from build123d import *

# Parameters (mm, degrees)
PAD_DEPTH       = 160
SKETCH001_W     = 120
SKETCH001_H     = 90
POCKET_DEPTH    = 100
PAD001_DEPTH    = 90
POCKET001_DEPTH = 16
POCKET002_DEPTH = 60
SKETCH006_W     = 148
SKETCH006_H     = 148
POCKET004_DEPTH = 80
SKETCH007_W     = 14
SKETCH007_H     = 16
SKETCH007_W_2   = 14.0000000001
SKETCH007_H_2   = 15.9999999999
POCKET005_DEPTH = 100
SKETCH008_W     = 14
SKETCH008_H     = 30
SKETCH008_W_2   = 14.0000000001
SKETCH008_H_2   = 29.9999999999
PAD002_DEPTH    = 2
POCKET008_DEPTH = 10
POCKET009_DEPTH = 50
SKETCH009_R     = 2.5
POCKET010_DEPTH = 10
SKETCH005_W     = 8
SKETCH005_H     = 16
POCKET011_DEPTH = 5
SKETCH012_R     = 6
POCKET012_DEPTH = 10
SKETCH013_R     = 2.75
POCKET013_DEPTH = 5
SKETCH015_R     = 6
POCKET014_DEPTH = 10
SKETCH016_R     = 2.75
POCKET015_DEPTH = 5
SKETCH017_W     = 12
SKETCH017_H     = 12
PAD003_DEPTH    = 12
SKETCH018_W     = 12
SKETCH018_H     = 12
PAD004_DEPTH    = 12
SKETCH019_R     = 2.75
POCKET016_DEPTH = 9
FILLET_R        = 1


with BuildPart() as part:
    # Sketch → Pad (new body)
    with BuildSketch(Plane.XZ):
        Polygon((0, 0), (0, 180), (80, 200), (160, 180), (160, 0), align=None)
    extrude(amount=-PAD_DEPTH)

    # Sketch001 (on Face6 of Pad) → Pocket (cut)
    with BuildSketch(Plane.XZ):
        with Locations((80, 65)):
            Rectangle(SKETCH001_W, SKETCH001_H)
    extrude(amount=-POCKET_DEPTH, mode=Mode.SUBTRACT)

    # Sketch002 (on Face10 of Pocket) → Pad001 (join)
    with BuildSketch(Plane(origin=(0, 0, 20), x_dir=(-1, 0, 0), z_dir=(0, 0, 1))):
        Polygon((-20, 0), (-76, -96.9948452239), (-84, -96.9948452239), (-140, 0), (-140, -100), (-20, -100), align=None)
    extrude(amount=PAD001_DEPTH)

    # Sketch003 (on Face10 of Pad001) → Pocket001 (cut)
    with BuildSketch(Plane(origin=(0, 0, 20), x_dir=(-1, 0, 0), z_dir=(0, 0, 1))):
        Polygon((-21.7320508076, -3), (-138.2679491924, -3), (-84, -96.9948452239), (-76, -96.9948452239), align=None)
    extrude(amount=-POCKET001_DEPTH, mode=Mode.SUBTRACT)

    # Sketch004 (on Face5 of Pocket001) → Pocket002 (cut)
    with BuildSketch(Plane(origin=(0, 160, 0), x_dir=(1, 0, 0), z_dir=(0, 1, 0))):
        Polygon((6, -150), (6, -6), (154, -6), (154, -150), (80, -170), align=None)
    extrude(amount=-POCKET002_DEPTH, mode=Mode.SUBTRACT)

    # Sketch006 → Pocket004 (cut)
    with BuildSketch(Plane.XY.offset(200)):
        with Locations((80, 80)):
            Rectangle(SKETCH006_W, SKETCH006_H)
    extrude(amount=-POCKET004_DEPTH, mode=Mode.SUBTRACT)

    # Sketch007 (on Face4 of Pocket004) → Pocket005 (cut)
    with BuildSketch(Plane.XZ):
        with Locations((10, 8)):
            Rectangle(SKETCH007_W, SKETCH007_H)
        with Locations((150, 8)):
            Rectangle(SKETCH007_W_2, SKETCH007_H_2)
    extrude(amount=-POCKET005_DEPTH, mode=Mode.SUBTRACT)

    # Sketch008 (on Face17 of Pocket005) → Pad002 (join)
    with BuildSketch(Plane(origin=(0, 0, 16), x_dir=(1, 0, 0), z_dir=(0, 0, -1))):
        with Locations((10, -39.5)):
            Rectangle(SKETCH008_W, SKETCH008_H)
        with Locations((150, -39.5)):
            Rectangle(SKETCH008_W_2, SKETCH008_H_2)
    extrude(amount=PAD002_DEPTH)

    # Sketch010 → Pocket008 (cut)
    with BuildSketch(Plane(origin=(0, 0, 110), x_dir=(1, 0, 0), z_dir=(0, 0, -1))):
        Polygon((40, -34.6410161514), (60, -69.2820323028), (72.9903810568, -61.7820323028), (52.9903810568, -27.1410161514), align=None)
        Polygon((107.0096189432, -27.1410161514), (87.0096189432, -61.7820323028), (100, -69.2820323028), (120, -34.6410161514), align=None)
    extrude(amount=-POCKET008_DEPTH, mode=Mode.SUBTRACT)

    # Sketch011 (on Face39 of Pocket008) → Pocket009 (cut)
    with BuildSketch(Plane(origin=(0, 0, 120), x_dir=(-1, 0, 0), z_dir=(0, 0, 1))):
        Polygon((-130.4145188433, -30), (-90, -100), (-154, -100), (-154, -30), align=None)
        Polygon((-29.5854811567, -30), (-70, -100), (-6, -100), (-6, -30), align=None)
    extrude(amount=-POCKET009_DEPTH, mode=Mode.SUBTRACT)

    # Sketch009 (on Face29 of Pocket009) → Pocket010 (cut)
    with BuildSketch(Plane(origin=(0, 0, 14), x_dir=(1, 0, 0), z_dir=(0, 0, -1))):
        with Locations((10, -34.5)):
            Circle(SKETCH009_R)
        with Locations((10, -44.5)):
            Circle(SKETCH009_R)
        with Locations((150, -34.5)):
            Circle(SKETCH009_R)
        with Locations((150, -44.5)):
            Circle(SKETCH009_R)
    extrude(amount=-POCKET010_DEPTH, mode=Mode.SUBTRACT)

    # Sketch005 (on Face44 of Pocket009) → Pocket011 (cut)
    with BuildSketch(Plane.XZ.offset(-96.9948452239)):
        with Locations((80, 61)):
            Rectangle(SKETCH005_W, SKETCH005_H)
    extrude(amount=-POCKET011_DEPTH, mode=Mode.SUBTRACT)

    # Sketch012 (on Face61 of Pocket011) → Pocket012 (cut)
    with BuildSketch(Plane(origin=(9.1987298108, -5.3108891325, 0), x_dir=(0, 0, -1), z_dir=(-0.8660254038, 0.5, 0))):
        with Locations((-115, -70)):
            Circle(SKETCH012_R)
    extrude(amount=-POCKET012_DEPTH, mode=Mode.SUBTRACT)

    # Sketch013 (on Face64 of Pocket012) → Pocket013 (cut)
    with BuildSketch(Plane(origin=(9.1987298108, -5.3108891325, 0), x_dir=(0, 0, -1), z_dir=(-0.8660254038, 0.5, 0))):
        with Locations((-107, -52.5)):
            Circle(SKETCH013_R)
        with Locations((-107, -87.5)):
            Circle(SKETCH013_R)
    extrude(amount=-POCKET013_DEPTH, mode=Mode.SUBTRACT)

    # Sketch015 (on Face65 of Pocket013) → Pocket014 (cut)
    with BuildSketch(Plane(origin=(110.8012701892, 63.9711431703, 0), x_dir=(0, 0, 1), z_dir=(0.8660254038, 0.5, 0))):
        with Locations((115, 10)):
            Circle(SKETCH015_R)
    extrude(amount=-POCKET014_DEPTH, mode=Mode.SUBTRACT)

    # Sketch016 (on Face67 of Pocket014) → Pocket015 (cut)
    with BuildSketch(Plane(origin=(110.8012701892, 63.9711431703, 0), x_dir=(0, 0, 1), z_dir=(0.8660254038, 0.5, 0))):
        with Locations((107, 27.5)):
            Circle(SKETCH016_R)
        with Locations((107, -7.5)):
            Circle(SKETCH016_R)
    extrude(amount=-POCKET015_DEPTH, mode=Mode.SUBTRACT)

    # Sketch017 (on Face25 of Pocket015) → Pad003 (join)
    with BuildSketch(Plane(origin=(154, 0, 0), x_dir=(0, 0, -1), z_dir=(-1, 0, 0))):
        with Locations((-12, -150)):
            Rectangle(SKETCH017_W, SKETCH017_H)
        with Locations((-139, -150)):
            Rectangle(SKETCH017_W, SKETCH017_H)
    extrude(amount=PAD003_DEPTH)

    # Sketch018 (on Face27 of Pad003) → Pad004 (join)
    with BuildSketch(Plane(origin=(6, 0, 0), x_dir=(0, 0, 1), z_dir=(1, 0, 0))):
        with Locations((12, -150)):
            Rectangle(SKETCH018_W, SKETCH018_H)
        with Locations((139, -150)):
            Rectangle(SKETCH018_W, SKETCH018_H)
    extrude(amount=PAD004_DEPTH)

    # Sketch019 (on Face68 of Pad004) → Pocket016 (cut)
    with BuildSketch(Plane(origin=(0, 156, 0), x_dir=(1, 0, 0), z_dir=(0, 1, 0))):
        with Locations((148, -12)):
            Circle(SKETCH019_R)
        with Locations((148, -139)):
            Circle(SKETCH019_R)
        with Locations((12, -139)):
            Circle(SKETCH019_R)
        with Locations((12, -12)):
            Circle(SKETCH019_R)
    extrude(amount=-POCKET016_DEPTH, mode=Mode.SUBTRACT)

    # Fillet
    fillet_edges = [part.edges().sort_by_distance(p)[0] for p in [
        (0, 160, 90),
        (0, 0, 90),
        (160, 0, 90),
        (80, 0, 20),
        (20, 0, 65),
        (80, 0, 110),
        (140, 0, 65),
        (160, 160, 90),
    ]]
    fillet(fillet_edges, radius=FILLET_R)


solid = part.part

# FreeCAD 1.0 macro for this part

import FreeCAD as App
import Part
import Sketcher

V = App.Vector
Q = App.Units.Quantity


def edges_at(feature, points):
    """Names of the edges that pass closest to the given points."""
    edges = feature.Shape.Edges
    near = lambda p: min(range(len(edges)), key=lambda i: edges[i].distToShape(Part.Vertex(*p))[0])
    return sorted({f"Edge{near(p) + 1}" for p in points})


def add_polygon(sketch, points):
    """Adds a closed chain of lines whose ends are joined by coincident constraints."""
    first, n = sketch.GeometryCount, len(points)
    for a, b in zip(points, points[1:] + points[:1]):
        sketch.addGeometry(Part.LineSegment(App.Vector(*a, 0), App.Vector(*b, 0)), False)
    for i in range(n):
        sketch.addConstraint(Sketcher.Constraint("Coincident", first + i, 2, first + (i + 1) % n, 1))

doc = App.newDocument("Part")
body = doc.addObject("PartDesign::Body", "Body")

# Sketch on XZ plane
sketch1 = doc.addObject("Sketcher::SketchObject", "Sketch")
body.addObject(sketch1)
sketch1.AttachmentSupport = (doc.XZ_Plane, [""])
sketch1.MapMode = "FlatFace"
add_polygon(sketch1, [(0, 180), (0, 0), (160, 0), (160, 180), (80, 200)])  # lines 0-4
sketch1.addConstraint([
    Sketcher.Constraint("Vertical", 0),
    Sketcher.Constraint("Horizontal", 1),
    Sketcher.Constraint("Vertical", 2),
    Sketcher.Constraint("Coincident", 0, 2, -1, 1),
    Sketcher.Constraint("Horizontal", 2, 2, 4, 2),
    Sketcher.Constraint("Equal", 3, 4),
    Sketcher.Constraint("DistanceX", 1, 1, 1, 2, Q("160 mm")),
    Sketcher.Constraint("DistanceY", 0, 2, 0, 1, Q("180 mm")),
    Sketcher.Constraint("DistanceY", -1, 1, 3, 2, Q("200 mm")),
])
pad1 = doc.addObject("PartDesign::Pad", "Pad")
body.addObject(pad1)
pad1.Profile = sketch1
pad1.Length = 160
pad1.Reversed = True

# Sketch on XZ plane
sketch2 = doc.addObject("Sketcher::SketchObject", "Sketch001")
body.addObject(sketch2)
sketch2.AttachmentSupport = (doc.XZ_Plane, [""])
sketch2.MapMode = "FlatFace"
add_polygon(sketch2, [(20, 110), (20, 20), (140, 20), (140, 110)])  # lines 0-3
sketch2.addConstraint([
    Sketcher.Constraint("Vertical", 0),
    Sketcher.Constraint("Horizontal", 1),
    Sketcher.Constraint("Vertical", 2),
    Sketcher.Constraint("Horizontal", 3),
    Sketcher.Constraint("DistanceX", 1, 1, 1, 2, Q("120 mm")),
    Sketcher.Constraint("DistanceY", 0, 2, 0, 1, Q("90 mm")),
    Sketcher.Constraint("DistanceX", -1, 1, 0, 2, Q("20 mm")),
    Sketcher.Constraint("DistanceY", -1, 1, 0, 2, Q("20 mm")),
])
pocket1 = doc.addObject("PartDesign::Pocket", "Pocket")
body.addObject(pocket1)
pocket1.Profile = sketch2
pocket1.Length = 100

# Sketch on XY plane
sketch3 = doc.addObject("Sketcher::SketchObject", "Sketch002")
body.addObject(sketch3)
sketch3.AttachmentSupport = (doc.XY_Plane, [""])
sketch3.MapMode = "FlatFace"
sketch3.AttachmentOffset = App.Placement(V(0, 0, 20), App.Rotation())
add_polygon(sketch3, [(20, 0), (76, 97), (84, 97), (140, 0), (140, 100), (20, 100)])  # lines 0-5
sketch3.addConstraint([
    Sketcher.Constraint("Horizontal", 1),
    Sketcher.Constraint("Vertical", 3),
    Sketcher.Constraint("Horizontal", 4),
    Sketcher.Constraint("Vertical", 5),
    Sketcher.Constraint("PointOnObject", 2, 2, -1),
    Sketcher.Constraint("PointOnObject", 5, 2, -1),
    Sketcher.Constraint("Equal", 0, 2),
    Sketcher.Constraint("DistanceX", 1, 1, 1, 2, Q("8 mm")),
    Sketcher.Constraint("DistanceX", 4, 2, 4, 1, Q("120 mm")),
    Sketcher.Constraint("DistanceY", 3, 1, 3, 2, Q("100 mm")),
    Sketcher.Constraint("Angle", 0, Q("60 deg")),
    Sketcher.Constraint("DistanceX", -1, 1, 0, 2, Q("76 mm")),
])
pad2 = doc.addObject("PartDesign::Pad", "Pad001")
body.addObject(pad2)
pad2.Profile = sketch3
pad2.Length = 90

# Sketch on XY plane
sketch4 = doc.addObject("Sketcher::SketchObject", "Sketch003")
body.addObject(sketch4)
sketch4.AttachmentSupport = (doc.XY_Plane, [""])
sketch4.MapMode = "FlatFace"
sketch4.AttachmentOffset = App.Placement(V(0, 0, 20), App.Rotation())
add_polygon(sketch4, [(22, 3), (138, 3), (84, 97), (76, 97)])  # lines 0-3
sketch4.addConstraint([
    Sketcher.Constraint("Horizontal", 0),
    Sketcher.Constraint("Horizontal", 2),
    Sketcher.Constraint("Equal", 1, 3),
    Sketcher.Constraint("DistanceX", 2, 2, 2, 1, Q("8 mm")),
    Sketcher.Constraint("Angle", 1, Q("120 deg")),
    Sketcher.Constraint("DistanceY", -1, 1, 0, 2, Q("3 mm")),
    Sketcher.Constraint("DistanceX", -1, 1, 1, 2, Q("84 mm")),
    Sketcher.Constraint("DistanceX", 0, 1, 0, 2, Q("116.535898 mm")),
])
pocket2 = doc.addObject("PartDesign::Pocket", "Pocket001")
body.addObject(pocket2)
pocket2.Profile = sketch4
pocket2.Length = 16

# Sketch on XZ plane
sketch5 = doc.addObject("Sketcher::SketchObject", "Sketch004")
body.addObject(sketch5)
sketch5.AttachmentSupport = (doc.XZ_Plane, [""])
sketch5.MapMode = "FlatFace"
sketch5.AttachmentOffset = App.Placement(V(0, 0, -160), App.Rotation())
add_polygon(sketch5, [(6, 6), (6, 150), (80, 170), (154, 150), (154, 6)])  # lines 0-4
sketch5.addConstraint([
    Sketcher.Constraint("Vertical", 0),
    Sketcher.Constraint("Vertical", 3),
    Sketcher.Constraint("Horizontal", 4),
    Sketcher.Constraint("Horizontal", 0, 2, 2, 2),
    Sketcher.Constraint("Equal", 1, 2),
    Sketcher.Constraint("DistanceX", 4, 2, 4, 1, Q("148 mm")),
    Sketcher.Constraint("DistanceY", 0, 1, 0, 2, Q("144 mm")),
    Sketcher.Constraint("DistanceX", -1, 1, 0, 2, Q("6 mm")),
    Sketcher.Constraint("DistanceY", -1, 1, 0, 2, Q("150 mm")),
    Sketcher.Constraint("DistanceY", -1, 1, 1, 2, Q("170 mm")),
])
pocket3 = doc.addObject("PartDesign::Pocket", "Pocket002")
body.addObject(pocket3)
pocket3.Profile = sketch5
pocket3.Length = 60
pocket3.Reversed = True

# Sketch on XY plane
sketch6 = doc.addObject("Sketcher::SketchObject", "Sketch005")
body.addObject(sketch6)
sketch6.AttachmentSupport = (doc.XY_Plane, [""])
sketch6.MapMode = "FlatFace"
sketch6.AttachmentOffset = App.Placement(V(0, 0, 200), App.Rotation())
add_polygon(sketch6, [(6, 154), (6, 6), (154, 6), (154, 154)])  # lines 0-3
sketch6.addConstraint([
    Sketcher.Constraint("Vertical", 0),
    Sketcher.Constraint("Horizontal", 1),
    Sketcher.Constraint("Vertical", 2),
    Sketcher.Constraint("Horizontal", 3),
    Sketcher.Constraint("Equal", 3, 0),
    Sketcher.Constraint("DistanceX", 1, 1, 1, 2, Q("148 mm")),
    Sketcher.Constraint("DistanceX", -1, 1, 0, 2, Q("6 mm")),
    Sketcher.Constraint("DistanceY", -1, 1, 0, 2, Q("6 mm")),
])
pocket4 = doc.addObject("PartDesign::Pocket", "Pocket003")
body.addObject(pocket4)
pocket4.Profile = sketch6
pocket4.Length = 80

# Sketch on XZ plane
sketch7 = doc.addObject("Sketcher::SketchObject", "Sketch006")
body.addObject(sketch7)
sketch7.AttachmentSupport = (doc.XZ_Plane, [""])
sketch7.MapMode = "FlatFace"
add_polygon(sketch7, [(3, 16), (3, 0), (17, 0), (17, 16)])  # lines 0-3
add_polygon(sketch7, [(143, 16), (143, 0), (157, 0), (157, 16)])  # lines 4-7
sketch7.addConstraint([
    Sketcher.Constraint("Vertical", 0),
    Sketcher.Constraint("Horizontal", 1),
    Sketcher.Constraint("Vertical", 2),
    Sketcher.Constraint("Horizontal", 3),
    Sketcher.Constraint("Vertical", 4),
    Sketcher.Constraint("Horizontal", 5),
    Sketcher.Constraint("Vertical", 6),
    Sketcher.Constraint("Horizontal", 7),
    Sketcher.Constraint("PointOnObject", 0, 2, -1),
    Sketcher.Constraint("PointOnObject", 4, 2, -1),
    Sketcher.Constraint("Horizontal", 3, 2, 6, 2),
    Sketcher.Constraint("Equal", 3, 5),
    Sketcher.Constraint("DistanceX", 1, 1, 1, 2, Q("14 mm")),
    Sketcher.Constraint("DistanceY", 0, 2, 0, 1, Q("16 mm")),
    Sketcher.Constraint("DistanceX", -1, 1, 0, 2, Q("3 mm")),
    Sketcher.Constraint("DistanceX", -1, 1, 4, 2, Q("143 mm")),
])
pocket5 = doc.addObject("PartDesign::Pocket", "Pocket004")
body.addObject(pocket5)
pocket5.Profile = sketch7
pocket5.Length = 100

# Sketch on XY plane
sketch8 = doc.addObject("Sketcher::SketchObject", "Sketch007")
body.addObject(sketch8)
sketch8.AttachmentSupport = (doc.XY_Plane, [""])
sketch8.MapMode = "FlatFace"
sketch8.AttachmentOffset = App.Placement(V(0, 0, 16), App.Rotation())
add_polygon(sketch8, [(3, 24), (3, 54), (17, 54), (17, 24)])  # lines 0-3
add_polygon(sketch8, [(143, 24), (143, 54), (157, 54), (157, 24)])  # lines 4-7
sketch8.addConstraint([
    Sketcher.Constraint("Vertical", 0),
    Sketcher.Constraint("Horizontal", 1),
    Sketcher.Constraint("Vertical", 2),
    Sketcher.Constraint("Horizontal", 3),
    Sketcher.Constraint("Vertical", 4),
    Sketcher.Constraint("Horizontal", 5),
    Sketcher.Constraint("Vertical", 6),
    Sketcher.Constraint("Horizontal", 7),
    Sketcher.Constraint("Horizontal", 1, 2, 4, 2),
    Sketcher.Constraint("Horizontal", 3, 2, 6, 2),
    Sketcher.Constraint("Equal", 3, 5),
    Sketcher.Constraint("DistanceX", 1, 1, 1, 2, Q("14 mm")),
    Sketcher.Constraint("DistanceY", 0, 1, 0, 2, Q("30 mm")),
    Sketcher.Constraint("DistanceX", -1, 1, 0, 2, Q("3 mm")),
    Sketcher.Constraint("DistanceX", -1, 1, 4, 2, Q("143 mm")),
    Sketcher.Constraint("DistanceY", -1, 1, 0, 2, Q("54.5 mm")),
])
pad3 = doc.addObject("PartDesign::Pad", "Pad002")
body.addObject(pad3)
pad3.Profile = sketch8
pad3.Length = 2
pad3.Reversed = True

# Sketch on XY plane
sketch9 = doc.addObject("Sketcher::SketchObject", "Sketch008")
body.addObject(sketch9)
sketch9.AttachmentSupport = (doc.XY_Plane, [""])
sketch9.MapMode = "FlatFace"
sketch9.AttachmentOffset = App.Placement(V(0, 0, 110), App.Rotation())
add_polygon(sketch9, [(40, 35), (60, 69), (73, 62), (53, 27)])  # lines 0-3
add_polygon(sketch9, [(107, 27), (87, 62), (100, 69), (120, 35)])  # lines 4-7
sketch9.addConstraint([
    Sketcher.Constraint("Perpendicular", 0, 1),
    Sketcher.Constraint("Perpendicular", 1, 2),
    Sketcher.Constraint("Perpendicular", 2, 3),
    Sketcher.Constraint("Perpendicular", 4, 5),
    Sketcher.Constraint("Perpendicular", 5, 6),
    Sketcher.Constraint("Perpendicular", 6, 7),
    Sketcher.Constraint("Horizontal", 1, 2, 4, 2),
    Sketcher.Constraint("Horizontal", 0, 2, 5, 2),
    Sketcher.Constraint("Horizontal", 3, 2, 6, 2),
    Sketcher.Constraint("Equal", 2, 4),
    Sketcher.Constraint("Angle", 0, Q("60 deg")),
    Sketcher.Constraint("Distance", 0, Q("40 mm")),
    Sketcher.Constraint("Distance", 1, Q("15 mm")),
    Sketcher.Constraint("DistanceX", -1, 1, 0, 2, Q("60 mm")),
    Sketcher.Constraint("DistanceX", -1, 1, 5, 2, Q("100 mm")),
    Sketcher.Constraint("DistanceY", -1, 1, 0, 2, Q("69.282032 mm")),
])
pocket6 = doc.addObject("PartDesign::Pocket", "Pocket005")
body.addObject(pocket6)
pocket6.Profile = sketch9
pocket6.Length = 10
pocket6.Reversed = True

# Sketch on XY plane
sketch10 = doc.addObject("Sketcher::SketchObject", "Sketch009")
body.addObject(sketch10)
sketch10.AttachmentSupport = (doc.XY_Plane, [""])
sketch10.MapMode = "FlatFace"
sketch10.AttachmentOffset = App.Placement(V(0, 0, 120), App.Rotation())
add_polygon(sketch10, [(90, 100), (130, 30), (154, 30), (154, 100)])  # lines 0-3
add_polygon(sketch10, [(30, 30), (70, 100), (6, 100), (6, 30)])  # lines 4-7
sketch10.addConstraint([
    Sketcher.Constraint("Horizontal", 1),
    Sketcher.Constraint("Vertical", 2),
    Sketcher.Constraint("Horizontal", 3),
    Sketcher.Constraint("Horizontal", 5),
    Sketcher.Constraint("Vertical", 6),
    Sketcher.Constraint("Horizontal", 7),
    Sketcher.Constraint("Horizontal", 3, 2, 4, 2),
    Sketcher.Constraint("Horizontal", 1, 2, 6, 2),
    Sketcher.Constraint("Equal", 3, 5),
    Sketcher.Constraint("Equal", 1, 7),
    Sketcher.Constraint("DistanceX", 3, 2, 3, 1, Q("64 mm")),
    Sketcher.Constraint("DistanceY", 2, 1, 2, 2, Q("70 mm")),
    Sketcher.Constraint("Angle", 0, Q("-60 deg")),
    Sketcher.Constraint("DistanceY", -1, 1, 0, 2, Q("30 mm")),
    Sketcher.Constraint("DistanceX", -1, 1, 1, 2, Q("154 mm")),
    Sketcher.Constraint("DistanceX", -1, 1, 4, 2, Q("70 mm")),
])
pocket7 = doc.addObject("PartDesign::Pocket", "Pocket006")
body.addObject(pocket7)
pocket7.Profile = sketch10
pocket7.Length = 50

# Sketch on XY plane
sketch11 = doc.addObject("Sketcher::SketchObject", "Sketch010")
body.addObject(sketch11)
sketch11.AttachmentSupport = (doc.XY_Plane, [""])
sketch11.MapMode = "FlatFace"
sketch11.AttachmentOffset = App.Placement(V(0, 0, 14), App.Rotation())
sketch11.addGeometry([
    Part.Circle(V(10, 34.5, 0), V(0, 0, 1), 2.5),
    Part.Circle(V(10, 44.5, 0), V(0, 0, 1), 2.5),
    Part.Circle(V(150, 34.5, 0), V(0, 0, 1), 2.5),
    Part.Circle(V(150, 44.5, 0), V(0, 0, 1), 2.5),
], False)
sketch11.addConstraint([
    Sketcher.Constraint("Equal", 0, 1),
    Sketcher.Constraint("Equal", 1, 2),
    Sketcher.Constraint("Equal", 2, 3),
    Sketcher.Constraint("Horizontal", 0, 3, 2, 3),
    Sketcher.Constraint("Horizontal", 1, 3, 3, 3),
    Sketcher.Constraint("Vertical", 0, 3, 1, 3),
    Sketcher.Constraint("Vertical", 2, 3, 3, 3),
    Sketcher.Constraint("Diameter", 0, Q("5 mm")),
    Sketcher.Constraint("DistanceX", -1, 1, 0, 3, Q("10 mm")),
    Sketcher.Constraint("DistanceX", -1, 1, 2, 3, Q("150 mm")),
    Sketcher.Constraint("DistanceY", 0, 3, 1, 3, Q("10 mm")),
    Sketcher.Constraint("DistanceY", -1, 1, 0, 3, Q("34.5 mm")),
])
pocket8 = doc.addObject("PartDesign::Pocket", "Pocket007")
body.addObject(pocket8)
pocket8.Profile = sketch11
pocket8.Length = 10
pocket8.Reversed = True

# Sketch on XZ plane
sketch12 = doc.addObject("Sketcher::SketchObject", "Sketch011")
body.addObject(sketch12)
sketch12.AttachmentSupport = (doc.XZ_Plane, [""])
sketch12.MapMode = "FlatFace"
sketch12.AttachmentOffset = App.Placement(V(0, 0, -96.994845), App.Rotation())
add_polygon(sketch12, [(76, 69), (76, 53), (84, 53), (84, 69)])  # lines 0-3
sketch12.addConstraint([
    Sketcher.Constraint("Vertical", 0),
    Sketcher.Constraint("Horizontal", 1),
    Sketcher.Constraint("Vertical", 2),
    Sketcher.Constraint("Horizontal", 3),
    Sketcher.Constraint("DistanceX", 1, 1, 1, 2, Q("8 mm")),
    Sketcher.Constraint("DistanceY", 0, 2, 0, 1, Q("16 mm")),
    Sketcher.Constraint("DistanceX", -1, 1, 0, 2, Q("76 mm")),
    Sketcher.Constraint("DistanceY", -1, 1, 0, 2, Q("53 mm")),
])
pocket9 = doc.addObject("PartDesign::Pocket", "Pocket008")
body.addObject(pocket9)
pocket9.Profile = sketch12
pocket9.Length = 5

# Sketch on an angled plane
sketch13 = doc.addObject("Sketcher::SketchObject", "Sketch012")
body.addObject(sketch13)
sketch13.Placement = App.Placement(V(9.19873, -5.310889, 0), App.Rotation(V(0, 0, -1), V(-0.5, -0.866025404, 0), V(-0.866025404, 0.5, 0), "ZXY"))
sketch13.addGeometry(Part.Circle(V(-115, -70, 0), V(0, 0, 1), 6), False)
sketch13.addConstraint([
    Sketcher.Constraint("Diameter", 0, Q("12 mm")),
    Sketcher.Constraint("DistanceX", 0, 3, -1, 1, Q("115 mm")),
    Sketcher.Constraint("DistanceY", 0, 3, -1, 1, Q("70 mm")),
])
pocket10 = doc.addObject("PartDesign::Pocket", "Pocket009")
body.addObject(pocket10)
pocket10.Profile = sketch13
pocket10.Length = 10

# Sketch on an angled plane
sketch14 = doc.addObject("Sketcher::SketchObject", "Sketch013")
body.addObject(sketch14)
sketch14.Placement = App.Placement(V(9.19873, -5.310889, 0), App.Rotation(V(0, 0, -1), V(-0.5, -0.866025404, 0), V(-0.866025404, 0.5, 0), "ZXY"))
sketch14.addGeometry([
    Part.Circle(V(-107, -52.5, 0), V(0, 0, 1), 2.8),
    Part.Circle(V(-107, -87.5, 0), V(0, 0, 1), 2.8),
], False)
sketch14.addConstraint([
    Sketcher.Constraint("Equal", 0, 1),
    Sketcher.Constraint("Vertical", 0, 3, 1, 3),
    Sketcher.Constraint("Diameter", 0, Q("5.5 mm")),
    Sketcher.Constraint("DistanceX", 0, 3, -1, 1, Q("107 mm")),
    Sketcher.Constraint("DistanceY", 1, 3, 0, 3, Q("35 mm")),
    Sketcher.Constraint("DistanceY", 0, 3, -1, 1, Q("52.5 mm")),
])
pocket11 = doc.addObject("PartDesign::Pocket", "Pocket010")
body.addObject(pocket11)
pocket11.Profile = sketch14
pocket11.Length = 5

# Sketch on an angled plane
sketch15 = doc.addObject("Sketcher::SketchObject", "Sketch014")
body.addObject(sketch15)
sketch15.Placement = App.Placement(V(110.80127, 63.971143, 0), App.Rotation(V(0, 0, 1), V(0.5, -0.866025404, 0), V(0.866025404, 0.5, 0), "ZXY"))
sketch15.addGeometry(Part.Circle(V(115, 10, 0), V(0, 0, 1), 6), False)
sketch15.addConstraint([
    Sketcher.Constraint("Diameter", 0, Q("12 mm")),
    Sketcher.Constraint("DistanceX", -1, 1, 0, 3, Q("115 mm")),
    Sketcher.Constraint("DistanceY", -1, 1, 0, 3, Q("10 mm")),
])
pocket12 = doc.addObject("PartDesign::Pocket", "Pocket011")
body.addObject(pocket12)
pocket12.Profile = sketch15
pocket12.Length = 10

# Sketch on an angled plane
sketch16 = doc.addObject("Sketcher::SketchObject", "Sketch015")
body.addObject(sketch16)
sketch16.Placement = App.Placement(V(110.80127, 63.971143, 0), App.Rotation(V(0, 0, 1), V(0.5, -0.866025404, 0), V(0.866025404, 0.5, 0), "ZXY"))
sketch16.addGeometry([
    Part.Circle(V(107, 27.5, 0), V(0, 0, 1), 2.8),
    Part.Circle(V(107, -7.5, 0), V(0, 0, 1), 2.8),
], False)
sketch16.addConstraint([
    Sketcher.Constraint("Equal", 0, 1),
    Sketcher.Constraint("Vertical", 0, 3, 1, 3),
    Sketcher.Constraint("Diameter", 0, Q("5.5 mm")),
    Sketcher.Constraint("DistanceX", -1, 1, 0, 3, Q("107 mm")),
    Sketcher.Constraint("DistanceY", 1, 3, 0, 3, Q("35 mm")),
    Sketcher.Constraint("DistanceY", -1, 1, 0, 3, Q("27.5 mm")),
])
pocket13 = doc.addObject("PartDesign::Pocket", "Pocket012")
body.addObject(pocket13)
pocket13.Profile = sketch16
pocket13.Length = 5

# Sketch on YZ plane
sketch17 = doc.addObject("Sketcher::SketchObject", "Sketch016")
body.addObject(sketch17)
sketch17.AttachmentSupport = (doc.YZ_Plane, [""])
sketch17.MapMode = "FlatFace"
sketch17.AttachmentOffset = App.Placement(V(0, 0, 154), App.Rotation())
add_polygon(sketch17, [(144, 18), (156, 18), (156, 6), (144, 6)])  # lines 0-3
add_polygon(sketch17, [(144, 145), (156, 145), (156, 133), (144, 133)])  # lines 4-7
sketch17.addConstraint([
    Sketcher.Constraint("Horizontal", 0),
    Sketcher.Constraint("Vertical", 1),
    Sketcher.Constraint("Horizontal", 2),
    Sketcher.Constraint("Vertical", 3),
    Sketcher.Constraint("Horizontal", 4),
    Sketcher.Constraint("Vertical", 5),
    Sketcher.Constraint("Horizontal", 6),
    Sketcher.Constraint("Vertical", 7),
    Sketcher.Constraint("Vertical", 1, 2, 4, 2),
    Sketcher.Constraint("Vertical", 3, 2, 6, 2),
    Sketcher.Constraint("Equal", 6, 1),
    Sketcher.Constraint("Equal", 3, 5),
    Sketcher.Constraint("DistanceX", 0, 1, 0, 2, Q("12 mm")),
    Sketcher.Constraint("DistanceX", -1, 1, 0, 2, Q("156 mm")),
    Sketcher.Constraint("DistanceY", -1, 1, 0, 2, Q("18 mm")),
    Sketcher.Constraint("DistanceY", -1, 1, 4, 2, Q("145 mm")),
])
pad4 = doc.addObject("PartDesign::Pad", "Pad003")
body.addObject(pad4)
pad4.Profile = sketch17
pad4.Length = 12
pad4.Reversed = True

# Sketch on YZ plane
sketch18 = doc.addObject("Sketcher::SketchObject", "Sketch017")
body.addObject(sketch18)
sketch18.AttachmentSupport = (doc.YZ_Plane, [""])
sketch18.MapMode = "FlatFace"
sketch18.AttachmentOffset = App.Placement(V(0, 0, 6), App.Rotation())
add_polygon(sketch18, [(144, 6), (156, 6), (156, 18), (144, 18)])  # lines 0-3
add_polygon(sketch18, [(144, 133), (156, 133), (156, 145), (144, 145)])  # lines 4-7
sketch18.addConstraint([
    Sketcher.Constraint("Horizontal", 0),
    Sketcher.Constraint("Vertical", 1),
    Sketcher.Constraint("Horizontal", 2),
    Sketcher.Constraint("Vertical", 3),
    Sketcher.Constraint("Horizontal", 4),
    Sketcher.Constraint("Vertical", 5),
    Sketcher.Constraint("Horizontal", 6),
    Sketcher.Constraint("Vertical", 7),
    Sketcher.Constraint("Vertical", 1, 2, 4, 2),
    Sketcher.Constraint("Vertical", 3, 2, 6, 2),
    Sketcher.Constraint("Equal", 6, 1),
    Sketcher.Constraint("Equal", 3, 5),
    Sketcher.Constraint("DistanceX", 0, 1, 0, 2, Q("12 mm")),
    Sketcher.Constraint("DistanceX", -1, 1, 0, 2, Q("156 mm")),
    Sketcher.Constraint("DistanceY", -1, 1, 0, 2, Q("6 mm")),
    Sketcher.Constraint("DistanceY", -1, 1, 4, 2, Q("133 mm")),
])
pad5 = doc.addObject("PartDesign::Pad", "Pad004")
body.addObject(pad5)
pad5.Profile = sketch18
pad5.Length = 12

# Sketch on XZ plane
sketch19 = doc.addObject("Sketcher::SketchObject", "Sketch018")
body.addObject(sketch19)
sketch19.AttachmentSupport = (doc.XZ_Plane, [""])
sketch19.MapMode = "FlatFace"
sketch19.AttachmentOffset = App.Placement(V(0, 0, -156), App.Rotation())
sketch19.addGeometry([
    Part.Circle(V(148, 12, 0), V(0, 0, 1), 2.8),
    Part.Circle(V(148, 139, 0), V(0, 0, 1), 2.8),
    Part.Circle(V(12, 139, 0), V(0, 0, 1), 2.8),
    Part.Circle(V(12, 12, 0), V(0, 0, 1), 2.8),
], False)
sketch19.addConstraint([
    Sketcher.Constraint("Equal", 0, 1),
    Sketcher.Constraint("Equal", 1, 2),
    Sketcher.Constraint("Equal", 2, 3),
    Sketcher.Constraint("Horizontal", 1, 3, 2, 3),
    Sketcher.Constraint("Horizontal", 0, 3, 3, 3),
    Sketcher.Constraint("Vertical", 0, 3, 1, 3),
    Sketcher.Constraint("Vertical", 2, 3, 3, 3),
    Sketcher.Constraint("Diameter", 0, Q("5.5 mm")),
    Sketcher.Constraint("DistanceX", -1, 1, 0, 3, Q("148 mm")),
    Sketcher.Constraint("DistanceY", -1, 1, 0, 3, Q("12 mm")),
    Sketcher.Constraint("DistanceY", -1, 1, 1, 3, Q("139 mm")),
    Sketcher.Constraint("DistanceX", -1, 1, 2, 3, Q("12 mm")),
])
pocket14 = doc.addObject("PartDesign::Pocket", "Pocket013")
body.addObject(pocket14)
pocket14.Profile = sketch19
pocket14.Length = 9
pocket14.Reversed = True
doc.recompute()

fillet = doc.addObject("PartDesign::Fillet", "Fillet")
body.addObject(fillet)
fillet.Base = (pocket14, edges_at(pocket14, [
    (0, 160, 90),
    (0, 0, 90),
    (160, 0, 90),
    (80, 0, 20),
    (20, 0, 65),
    (80, 0, 110),
    (140, 0, 65),
    (160, 160, 90),
]))
fillet.Radius = 1

doc.recompute()
